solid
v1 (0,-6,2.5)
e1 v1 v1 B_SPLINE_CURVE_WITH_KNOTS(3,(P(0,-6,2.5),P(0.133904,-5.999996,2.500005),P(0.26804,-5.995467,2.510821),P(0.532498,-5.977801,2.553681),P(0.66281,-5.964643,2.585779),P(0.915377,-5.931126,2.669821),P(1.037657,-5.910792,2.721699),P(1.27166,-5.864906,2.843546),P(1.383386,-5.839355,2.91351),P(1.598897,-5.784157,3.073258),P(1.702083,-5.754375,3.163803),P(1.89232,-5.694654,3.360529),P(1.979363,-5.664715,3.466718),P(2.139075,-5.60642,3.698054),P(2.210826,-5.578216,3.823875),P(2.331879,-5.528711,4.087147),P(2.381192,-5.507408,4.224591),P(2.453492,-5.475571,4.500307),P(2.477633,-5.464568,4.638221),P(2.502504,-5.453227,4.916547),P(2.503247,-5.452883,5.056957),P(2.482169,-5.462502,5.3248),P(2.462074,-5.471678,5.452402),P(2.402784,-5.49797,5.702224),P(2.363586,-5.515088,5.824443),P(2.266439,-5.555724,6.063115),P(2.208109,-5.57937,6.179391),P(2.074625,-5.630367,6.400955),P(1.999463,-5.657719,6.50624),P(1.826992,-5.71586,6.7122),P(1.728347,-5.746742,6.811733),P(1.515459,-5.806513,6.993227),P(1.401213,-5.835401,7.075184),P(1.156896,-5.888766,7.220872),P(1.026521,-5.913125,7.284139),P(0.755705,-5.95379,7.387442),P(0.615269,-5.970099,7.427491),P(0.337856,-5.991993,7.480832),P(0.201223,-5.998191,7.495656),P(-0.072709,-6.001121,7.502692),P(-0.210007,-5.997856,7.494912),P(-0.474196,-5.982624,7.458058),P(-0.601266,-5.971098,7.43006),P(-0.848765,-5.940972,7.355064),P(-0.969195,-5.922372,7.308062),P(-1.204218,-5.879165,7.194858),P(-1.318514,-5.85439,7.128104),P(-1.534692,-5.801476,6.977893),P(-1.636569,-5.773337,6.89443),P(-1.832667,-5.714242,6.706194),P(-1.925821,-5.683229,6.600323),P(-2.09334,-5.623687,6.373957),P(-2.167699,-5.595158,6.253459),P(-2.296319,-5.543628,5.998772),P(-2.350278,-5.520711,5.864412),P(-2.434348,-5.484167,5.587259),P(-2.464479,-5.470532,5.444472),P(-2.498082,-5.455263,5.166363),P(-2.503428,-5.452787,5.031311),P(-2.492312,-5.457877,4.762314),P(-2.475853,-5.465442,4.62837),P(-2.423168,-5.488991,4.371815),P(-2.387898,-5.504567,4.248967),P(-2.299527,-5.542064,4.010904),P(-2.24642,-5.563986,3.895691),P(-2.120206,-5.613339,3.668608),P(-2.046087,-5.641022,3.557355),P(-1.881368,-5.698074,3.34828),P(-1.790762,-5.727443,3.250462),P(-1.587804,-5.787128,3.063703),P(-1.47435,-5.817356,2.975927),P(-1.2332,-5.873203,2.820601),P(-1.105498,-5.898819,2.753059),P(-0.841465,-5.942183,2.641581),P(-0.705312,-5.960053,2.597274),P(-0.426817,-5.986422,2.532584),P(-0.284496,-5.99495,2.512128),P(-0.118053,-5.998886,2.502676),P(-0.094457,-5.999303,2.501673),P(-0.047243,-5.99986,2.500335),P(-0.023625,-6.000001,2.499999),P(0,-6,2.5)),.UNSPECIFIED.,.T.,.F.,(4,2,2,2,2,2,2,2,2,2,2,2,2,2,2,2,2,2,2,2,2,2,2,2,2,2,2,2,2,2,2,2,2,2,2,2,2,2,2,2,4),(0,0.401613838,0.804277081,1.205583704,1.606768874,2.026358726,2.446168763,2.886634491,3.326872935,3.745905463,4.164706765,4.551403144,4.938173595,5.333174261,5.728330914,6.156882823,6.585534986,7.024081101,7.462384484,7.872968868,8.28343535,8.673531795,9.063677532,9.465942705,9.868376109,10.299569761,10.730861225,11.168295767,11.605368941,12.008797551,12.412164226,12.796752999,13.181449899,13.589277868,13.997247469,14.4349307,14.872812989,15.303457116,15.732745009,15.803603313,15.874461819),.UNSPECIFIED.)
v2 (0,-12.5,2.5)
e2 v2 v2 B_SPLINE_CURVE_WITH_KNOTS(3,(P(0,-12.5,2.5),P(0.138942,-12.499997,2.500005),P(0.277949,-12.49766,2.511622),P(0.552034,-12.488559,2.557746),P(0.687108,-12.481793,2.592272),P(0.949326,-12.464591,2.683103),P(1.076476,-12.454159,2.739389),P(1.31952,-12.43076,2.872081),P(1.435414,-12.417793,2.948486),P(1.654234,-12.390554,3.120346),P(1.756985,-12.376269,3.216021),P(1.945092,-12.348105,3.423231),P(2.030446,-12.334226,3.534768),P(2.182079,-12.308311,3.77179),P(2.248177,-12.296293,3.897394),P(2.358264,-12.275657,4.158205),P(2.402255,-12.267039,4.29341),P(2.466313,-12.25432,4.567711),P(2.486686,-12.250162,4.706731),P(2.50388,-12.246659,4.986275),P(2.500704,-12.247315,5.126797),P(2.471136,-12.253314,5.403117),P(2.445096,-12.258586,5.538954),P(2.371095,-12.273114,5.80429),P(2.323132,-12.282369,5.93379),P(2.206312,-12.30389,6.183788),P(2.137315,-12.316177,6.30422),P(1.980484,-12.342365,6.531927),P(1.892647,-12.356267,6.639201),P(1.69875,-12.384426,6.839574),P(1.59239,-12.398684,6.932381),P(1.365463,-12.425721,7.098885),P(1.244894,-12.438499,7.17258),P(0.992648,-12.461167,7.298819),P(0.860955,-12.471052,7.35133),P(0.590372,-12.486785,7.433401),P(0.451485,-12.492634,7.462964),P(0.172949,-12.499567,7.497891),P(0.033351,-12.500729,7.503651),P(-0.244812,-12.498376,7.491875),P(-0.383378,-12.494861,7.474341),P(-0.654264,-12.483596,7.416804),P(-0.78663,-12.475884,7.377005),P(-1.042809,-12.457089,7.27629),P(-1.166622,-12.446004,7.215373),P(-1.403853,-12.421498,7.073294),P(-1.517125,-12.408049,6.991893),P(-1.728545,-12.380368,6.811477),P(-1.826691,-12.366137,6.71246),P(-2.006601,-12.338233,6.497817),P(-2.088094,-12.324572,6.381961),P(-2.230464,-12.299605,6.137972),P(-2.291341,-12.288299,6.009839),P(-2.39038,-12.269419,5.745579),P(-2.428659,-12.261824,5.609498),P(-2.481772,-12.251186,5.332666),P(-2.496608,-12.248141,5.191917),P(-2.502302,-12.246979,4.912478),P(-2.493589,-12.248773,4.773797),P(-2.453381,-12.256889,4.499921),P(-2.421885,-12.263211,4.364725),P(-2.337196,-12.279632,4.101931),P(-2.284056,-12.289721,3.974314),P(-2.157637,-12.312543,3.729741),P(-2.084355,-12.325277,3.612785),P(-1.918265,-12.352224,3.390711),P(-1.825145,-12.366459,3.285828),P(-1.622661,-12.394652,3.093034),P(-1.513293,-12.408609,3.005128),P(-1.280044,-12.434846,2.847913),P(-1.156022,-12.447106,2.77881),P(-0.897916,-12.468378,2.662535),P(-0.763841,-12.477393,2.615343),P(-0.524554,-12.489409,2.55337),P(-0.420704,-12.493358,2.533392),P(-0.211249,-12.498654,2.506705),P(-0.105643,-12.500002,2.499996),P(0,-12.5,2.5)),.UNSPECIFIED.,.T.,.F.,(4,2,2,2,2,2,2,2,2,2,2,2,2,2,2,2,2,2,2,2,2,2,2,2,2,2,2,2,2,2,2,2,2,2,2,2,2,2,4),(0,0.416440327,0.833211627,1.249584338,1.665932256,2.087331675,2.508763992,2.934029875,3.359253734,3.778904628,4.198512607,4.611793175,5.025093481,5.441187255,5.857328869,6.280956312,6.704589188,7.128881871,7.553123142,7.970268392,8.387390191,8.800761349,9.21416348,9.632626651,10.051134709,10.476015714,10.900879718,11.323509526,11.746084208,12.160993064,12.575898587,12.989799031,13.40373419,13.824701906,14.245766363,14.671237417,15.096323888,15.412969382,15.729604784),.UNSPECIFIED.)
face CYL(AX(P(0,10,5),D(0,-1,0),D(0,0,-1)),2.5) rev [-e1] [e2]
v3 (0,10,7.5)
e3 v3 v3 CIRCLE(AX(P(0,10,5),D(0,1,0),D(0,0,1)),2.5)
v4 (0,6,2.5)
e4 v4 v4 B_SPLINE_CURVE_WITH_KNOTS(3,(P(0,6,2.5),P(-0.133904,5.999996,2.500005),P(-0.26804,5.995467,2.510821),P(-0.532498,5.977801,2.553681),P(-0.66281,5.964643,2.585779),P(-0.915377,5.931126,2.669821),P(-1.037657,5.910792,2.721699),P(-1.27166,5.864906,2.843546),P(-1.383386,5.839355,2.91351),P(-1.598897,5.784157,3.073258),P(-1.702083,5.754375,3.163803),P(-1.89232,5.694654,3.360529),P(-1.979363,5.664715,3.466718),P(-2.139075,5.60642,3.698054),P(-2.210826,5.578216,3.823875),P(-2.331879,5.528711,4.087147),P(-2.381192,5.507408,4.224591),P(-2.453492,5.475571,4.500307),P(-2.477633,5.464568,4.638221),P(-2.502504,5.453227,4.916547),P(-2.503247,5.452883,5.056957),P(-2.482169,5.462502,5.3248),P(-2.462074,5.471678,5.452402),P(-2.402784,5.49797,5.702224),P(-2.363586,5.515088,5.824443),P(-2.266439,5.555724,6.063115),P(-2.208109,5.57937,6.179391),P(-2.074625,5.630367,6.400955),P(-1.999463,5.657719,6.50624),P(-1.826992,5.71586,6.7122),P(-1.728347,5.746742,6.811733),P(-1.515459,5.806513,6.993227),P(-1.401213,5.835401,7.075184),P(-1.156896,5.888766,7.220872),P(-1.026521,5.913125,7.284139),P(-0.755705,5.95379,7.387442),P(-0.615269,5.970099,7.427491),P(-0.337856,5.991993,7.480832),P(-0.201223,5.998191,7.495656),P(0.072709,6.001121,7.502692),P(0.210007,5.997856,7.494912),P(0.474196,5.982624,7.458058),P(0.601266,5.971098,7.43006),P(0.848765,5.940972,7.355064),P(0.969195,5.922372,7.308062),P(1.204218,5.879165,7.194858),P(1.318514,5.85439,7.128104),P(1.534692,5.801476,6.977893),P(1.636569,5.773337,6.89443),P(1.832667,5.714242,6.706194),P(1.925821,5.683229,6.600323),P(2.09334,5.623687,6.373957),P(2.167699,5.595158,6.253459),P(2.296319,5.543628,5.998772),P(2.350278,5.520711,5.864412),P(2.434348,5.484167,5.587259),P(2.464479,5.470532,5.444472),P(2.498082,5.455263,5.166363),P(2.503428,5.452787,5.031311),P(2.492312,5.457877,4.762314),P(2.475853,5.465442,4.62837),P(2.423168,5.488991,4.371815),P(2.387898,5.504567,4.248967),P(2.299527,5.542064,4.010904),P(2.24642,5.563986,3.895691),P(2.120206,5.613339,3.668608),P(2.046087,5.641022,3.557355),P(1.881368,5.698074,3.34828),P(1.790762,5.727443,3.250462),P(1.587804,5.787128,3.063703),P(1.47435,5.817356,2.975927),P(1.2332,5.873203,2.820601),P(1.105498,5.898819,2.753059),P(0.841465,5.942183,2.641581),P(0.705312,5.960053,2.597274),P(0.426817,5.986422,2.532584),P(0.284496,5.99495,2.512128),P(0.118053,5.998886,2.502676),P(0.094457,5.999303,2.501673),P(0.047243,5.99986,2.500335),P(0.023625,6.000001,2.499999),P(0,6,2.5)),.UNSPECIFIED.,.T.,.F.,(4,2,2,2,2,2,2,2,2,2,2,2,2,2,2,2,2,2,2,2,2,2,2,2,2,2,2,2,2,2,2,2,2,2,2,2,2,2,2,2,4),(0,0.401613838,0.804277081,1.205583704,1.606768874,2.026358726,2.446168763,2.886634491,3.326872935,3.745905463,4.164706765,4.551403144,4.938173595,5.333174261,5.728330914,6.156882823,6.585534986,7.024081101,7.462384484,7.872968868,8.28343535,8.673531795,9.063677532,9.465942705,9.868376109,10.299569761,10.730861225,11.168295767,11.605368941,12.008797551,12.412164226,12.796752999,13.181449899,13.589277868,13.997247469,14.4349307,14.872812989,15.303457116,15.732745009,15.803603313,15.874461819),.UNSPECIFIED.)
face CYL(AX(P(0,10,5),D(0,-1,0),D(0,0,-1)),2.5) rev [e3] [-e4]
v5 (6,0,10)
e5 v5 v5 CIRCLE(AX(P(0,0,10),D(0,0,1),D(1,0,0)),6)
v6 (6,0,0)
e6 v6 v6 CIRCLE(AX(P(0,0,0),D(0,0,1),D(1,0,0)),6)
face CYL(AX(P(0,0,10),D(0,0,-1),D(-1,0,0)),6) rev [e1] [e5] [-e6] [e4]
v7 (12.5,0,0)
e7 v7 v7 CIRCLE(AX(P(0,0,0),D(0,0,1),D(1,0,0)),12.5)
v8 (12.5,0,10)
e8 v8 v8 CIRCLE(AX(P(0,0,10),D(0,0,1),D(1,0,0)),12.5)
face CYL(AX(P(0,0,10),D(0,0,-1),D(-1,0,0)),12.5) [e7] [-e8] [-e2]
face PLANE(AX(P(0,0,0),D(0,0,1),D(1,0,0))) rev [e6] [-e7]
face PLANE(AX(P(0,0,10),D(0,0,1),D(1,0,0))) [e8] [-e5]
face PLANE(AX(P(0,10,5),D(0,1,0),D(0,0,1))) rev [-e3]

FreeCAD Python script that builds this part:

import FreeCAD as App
import Part
import Sketcher

doc = App.newDocument("Part")
body = doc.addObject("PartDesign::Body", "Body")

sketch1 = body.newObject("Sketcher::SketchObject", "Sketch")
sketch1.AttachmentSupport = (doc.getObject("XY_Plane"), [""])
sketch1.MapMode = "FlatFace"
sketch1.addGeometry([
    Part.Circle(App.Vector(0, 0, 0), App.Vector(0, 0, 1), 12.5),
    Part.Circle(App.Vector(0, 0, 0), App.Vector(0, 0, 1), 6),
], False)
sketch1.addConstraint([
    Sketcher.Constraint("Coincident", 0, 3, -1, 1),
    Sketcher.Constraint("Coincident", 1, 3, -1, 1),
    Sketcher.Constraint("Diameter", 0, 25.0),
    Sketcher.Constraint("Diameter", 1, 12.0),
])
pad1 = body.newObject("PartDesign::Pad", "Pad")
pad1.Profile = sketch1
pad1.Length = 10

sketch2 = body.newObject("Sketcher::SketchObject", "Sketch001")
sketch2.AttachmentSupport = (doc.getObject("XZ_Plane"), [""])
sketch2.MapMode = "FlatFace"
sketch2.addGeometry(Part.Circle(App.Vector(0, 5, 0), App.Vector(0, 0, 1), 2.5), False)
sketch2.addConstraint([
    Sketcher.Constraint("PointOnObject", 0, 3, -2),
    Sketcher.Constraint("Diameter", 0, 5.0),
    Sketcher.Constraint("DistanceY", -1, 1, 0, 3, 5.0),
])
pocket1 = body.newObject("PartDesign::Pocket", "Pocket")
pocket1.Profile = sketch2
pocket1.Type = "TwoLengths"
pocket1.Length = 10
pocket1.Length2 = 13.5

doc.recompute()
